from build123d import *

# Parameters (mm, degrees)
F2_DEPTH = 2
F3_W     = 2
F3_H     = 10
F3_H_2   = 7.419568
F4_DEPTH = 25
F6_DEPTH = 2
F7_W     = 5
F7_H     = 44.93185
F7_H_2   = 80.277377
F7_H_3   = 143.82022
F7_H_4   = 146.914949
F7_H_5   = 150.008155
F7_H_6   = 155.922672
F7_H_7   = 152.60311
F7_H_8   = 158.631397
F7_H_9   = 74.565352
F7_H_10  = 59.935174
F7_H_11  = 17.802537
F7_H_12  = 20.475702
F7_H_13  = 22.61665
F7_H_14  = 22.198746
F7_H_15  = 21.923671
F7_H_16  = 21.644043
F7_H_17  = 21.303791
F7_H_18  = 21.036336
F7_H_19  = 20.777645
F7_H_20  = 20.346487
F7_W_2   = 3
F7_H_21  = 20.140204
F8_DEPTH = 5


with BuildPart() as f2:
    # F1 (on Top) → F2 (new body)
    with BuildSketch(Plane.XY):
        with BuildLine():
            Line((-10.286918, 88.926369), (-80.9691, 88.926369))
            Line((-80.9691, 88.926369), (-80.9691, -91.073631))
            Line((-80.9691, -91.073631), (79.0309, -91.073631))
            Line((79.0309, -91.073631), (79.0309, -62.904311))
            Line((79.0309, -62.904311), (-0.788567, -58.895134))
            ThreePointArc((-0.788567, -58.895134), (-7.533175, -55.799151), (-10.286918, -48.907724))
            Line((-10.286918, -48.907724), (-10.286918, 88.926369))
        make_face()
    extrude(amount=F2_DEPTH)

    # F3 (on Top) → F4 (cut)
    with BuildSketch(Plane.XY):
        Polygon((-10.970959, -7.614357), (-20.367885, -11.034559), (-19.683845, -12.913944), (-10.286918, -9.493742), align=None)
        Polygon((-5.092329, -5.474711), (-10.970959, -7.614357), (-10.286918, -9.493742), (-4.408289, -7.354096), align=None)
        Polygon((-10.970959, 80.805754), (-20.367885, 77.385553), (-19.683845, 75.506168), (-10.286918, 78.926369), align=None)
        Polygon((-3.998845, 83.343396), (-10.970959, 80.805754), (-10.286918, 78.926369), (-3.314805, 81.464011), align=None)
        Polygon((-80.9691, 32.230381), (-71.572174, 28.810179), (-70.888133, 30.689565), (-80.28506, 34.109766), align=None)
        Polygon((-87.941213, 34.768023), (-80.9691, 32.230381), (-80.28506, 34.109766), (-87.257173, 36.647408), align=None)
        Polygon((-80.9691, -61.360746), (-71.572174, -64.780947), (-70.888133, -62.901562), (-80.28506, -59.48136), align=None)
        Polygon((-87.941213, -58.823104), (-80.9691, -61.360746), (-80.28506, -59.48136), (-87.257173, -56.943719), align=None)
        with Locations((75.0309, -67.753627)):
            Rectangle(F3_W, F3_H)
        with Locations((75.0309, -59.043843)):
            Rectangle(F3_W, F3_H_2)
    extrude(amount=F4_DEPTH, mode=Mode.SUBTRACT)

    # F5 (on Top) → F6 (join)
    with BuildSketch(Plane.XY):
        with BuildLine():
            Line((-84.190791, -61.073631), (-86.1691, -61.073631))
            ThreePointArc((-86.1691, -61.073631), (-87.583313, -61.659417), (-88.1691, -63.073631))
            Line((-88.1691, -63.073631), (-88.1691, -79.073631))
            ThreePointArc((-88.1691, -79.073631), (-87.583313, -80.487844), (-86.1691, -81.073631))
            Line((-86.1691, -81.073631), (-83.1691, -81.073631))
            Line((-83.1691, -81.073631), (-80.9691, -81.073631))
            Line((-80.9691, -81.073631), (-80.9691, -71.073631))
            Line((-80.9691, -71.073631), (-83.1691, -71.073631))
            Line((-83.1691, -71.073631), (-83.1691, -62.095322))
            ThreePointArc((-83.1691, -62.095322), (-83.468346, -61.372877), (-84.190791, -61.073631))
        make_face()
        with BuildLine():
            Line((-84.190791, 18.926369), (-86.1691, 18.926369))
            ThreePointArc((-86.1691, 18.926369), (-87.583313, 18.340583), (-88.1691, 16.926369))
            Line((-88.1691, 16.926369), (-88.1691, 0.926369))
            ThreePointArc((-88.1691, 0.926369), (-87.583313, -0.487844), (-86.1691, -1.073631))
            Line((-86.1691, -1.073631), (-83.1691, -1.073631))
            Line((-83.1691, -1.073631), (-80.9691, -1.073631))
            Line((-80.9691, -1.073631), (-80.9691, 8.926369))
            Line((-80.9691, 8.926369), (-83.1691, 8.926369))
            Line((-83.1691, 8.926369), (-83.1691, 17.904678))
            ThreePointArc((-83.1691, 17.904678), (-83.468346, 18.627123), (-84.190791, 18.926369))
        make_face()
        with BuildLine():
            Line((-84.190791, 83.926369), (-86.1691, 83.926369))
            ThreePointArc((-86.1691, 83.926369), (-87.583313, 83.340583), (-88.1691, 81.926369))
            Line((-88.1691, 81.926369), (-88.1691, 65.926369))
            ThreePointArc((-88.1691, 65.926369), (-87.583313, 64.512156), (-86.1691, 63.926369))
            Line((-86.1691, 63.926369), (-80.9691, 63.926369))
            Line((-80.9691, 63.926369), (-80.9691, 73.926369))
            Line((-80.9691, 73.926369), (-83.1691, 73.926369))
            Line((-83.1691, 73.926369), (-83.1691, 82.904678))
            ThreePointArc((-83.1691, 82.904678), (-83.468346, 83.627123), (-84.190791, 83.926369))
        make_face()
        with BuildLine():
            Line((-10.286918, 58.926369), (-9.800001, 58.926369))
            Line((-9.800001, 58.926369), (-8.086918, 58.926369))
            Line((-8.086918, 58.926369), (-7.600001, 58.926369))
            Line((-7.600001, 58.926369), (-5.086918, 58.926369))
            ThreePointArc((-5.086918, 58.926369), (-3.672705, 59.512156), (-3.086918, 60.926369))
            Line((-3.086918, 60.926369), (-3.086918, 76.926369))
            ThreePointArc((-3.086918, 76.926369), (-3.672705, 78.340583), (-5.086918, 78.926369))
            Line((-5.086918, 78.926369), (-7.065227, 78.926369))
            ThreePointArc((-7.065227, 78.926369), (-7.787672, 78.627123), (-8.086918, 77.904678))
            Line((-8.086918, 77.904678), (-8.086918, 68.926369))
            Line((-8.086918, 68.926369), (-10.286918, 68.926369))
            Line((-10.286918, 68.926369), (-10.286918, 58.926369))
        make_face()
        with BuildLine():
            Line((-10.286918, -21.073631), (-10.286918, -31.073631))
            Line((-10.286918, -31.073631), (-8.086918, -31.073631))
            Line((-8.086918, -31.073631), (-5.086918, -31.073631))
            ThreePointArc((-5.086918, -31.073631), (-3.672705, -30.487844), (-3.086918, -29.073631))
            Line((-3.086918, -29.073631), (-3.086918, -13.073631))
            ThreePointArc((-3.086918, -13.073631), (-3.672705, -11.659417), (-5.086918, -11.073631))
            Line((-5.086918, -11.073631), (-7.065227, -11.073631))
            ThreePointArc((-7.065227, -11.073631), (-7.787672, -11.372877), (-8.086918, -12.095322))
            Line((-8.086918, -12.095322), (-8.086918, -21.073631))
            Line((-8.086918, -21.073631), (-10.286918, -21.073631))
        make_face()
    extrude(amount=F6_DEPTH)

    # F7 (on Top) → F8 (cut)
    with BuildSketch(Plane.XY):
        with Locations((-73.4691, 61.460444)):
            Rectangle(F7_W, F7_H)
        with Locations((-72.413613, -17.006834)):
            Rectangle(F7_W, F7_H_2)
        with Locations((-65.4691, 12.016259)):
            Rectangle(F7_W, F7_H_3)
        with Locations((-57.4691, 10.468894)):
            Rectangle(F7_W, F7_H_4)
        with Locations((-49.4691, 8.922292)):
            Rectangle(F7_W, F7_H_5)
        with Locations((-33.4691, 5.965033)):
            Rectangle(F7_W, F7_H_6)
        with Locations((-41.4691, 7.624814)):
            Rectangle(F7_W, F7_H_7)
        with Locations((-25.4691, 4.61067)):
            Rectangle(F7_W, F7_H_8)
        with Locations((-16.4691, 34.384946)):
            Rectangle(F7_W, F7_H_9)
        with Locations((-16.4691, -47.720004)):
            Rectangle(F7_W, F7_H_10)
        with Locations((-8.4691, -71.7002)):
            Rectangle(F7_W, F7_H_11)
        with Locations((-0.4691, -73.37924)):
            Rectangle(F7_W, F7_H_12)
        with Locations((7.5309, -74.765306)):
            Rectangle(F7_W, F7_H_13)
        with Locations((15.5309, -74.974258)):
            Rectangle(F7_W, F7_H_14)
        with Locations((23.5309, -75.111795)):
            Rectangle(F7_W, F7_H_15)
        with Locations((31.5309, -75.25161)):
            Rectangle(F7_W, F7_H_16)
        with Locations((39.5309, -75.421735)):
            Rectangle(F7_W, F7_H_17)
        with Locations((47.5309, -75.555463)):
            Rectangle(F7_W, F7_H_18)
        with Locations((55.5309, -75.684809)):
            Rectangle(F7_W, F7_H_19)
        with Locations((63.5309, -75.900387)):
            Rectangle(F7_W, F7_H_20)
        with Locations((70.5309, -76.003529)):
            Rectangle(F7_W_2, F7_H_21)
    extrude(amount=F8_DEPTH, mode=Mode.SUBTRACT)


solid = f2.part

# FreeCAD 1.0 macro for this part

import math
import FreeCAD as App
import Part
import Sketcher

V = App.Vector
Q = App.Units.Quantity


def add_polygon(sketch, points):
    """Adds a closed chain of lines whose ends are joined by coincident constraints."""
    first, n = sketch.GeometryCount, len(points)
    for a, b in zip(points, points[1:] + points[:1]):
        sketch.addGeometry(Part.LineSegment(App.Vector(*a, 0), App.Vector(*b, 0)), False)
    for i in range(n):
        sketch.addConstraint(Sketcher.Constraint("Coincident", first + i, 2, first + (i + 1) % n, 1))

doc = App.newDocument("Part")
params = doc.addObject("Spreadsheet::Sheet", "Params")
for row, (alias, value) in enumerate([
    ("sketch1_radius", "10 mm"),
    ("sketch1_width", "160 mm"),
    ("sketch1_height", "180 mm"),
    ("pad1_length", "2 mm"),
    ("sketch2_width", "2 mm"),
    ("sketch2_length", "10 mm"),
    ("sketch2_length2", "2 mm"),
    ("pocket1_length", "25 mm"),
    ("sketch3_radius", "2 mm"),
    ("sketch3_height", "16 mm"),
    ("sketch3_height2", "10 mm"),
    ("sketch3_width", "5.2 mm"),
    ("sketch3_width2", "2.2 mm"),
    ("pad2_length", "2 mm"),
    ("sketch4_width", "5 mm"),
    ("sketch4_width2", "3 mm"),
    ("pocket2_length", "5 mm"),
], start=1):
    params.set(f"A{row}", alias)
    params.set(f"B{row}", "=" + value)
    params.setAlias(f"B{row}", alias)

body = doc.addObject("PartDesign::Body", "Body")

# Sketch on XY plane
sketch1 = body.newObject("Sketcher::SketchObject", "Sketch")
sketch1.AttachmentSupport = (doc.getObject("XY_Plane"), [""])
sketch1.MapMode = "FlatFace"
sketch1.addGeometry(Part.LineSegment(V(-10, 89, 0), V(-81, 89, 0)), False)
sketch1.addGeometry(Part.LineSegment(V(-81, 89, 0), V(-81, -91, 0)), False)
sketch1.addGeometry(Part.LineSegment(V(-81, -91, 0), V(79, -91, 0)), False)
sketch1.addGeometry(Part.LineSegment(V(79, -91, 0), V(79, -63, 0)), False)
sketch1.addGeometry(Part.LineSegment(V(79, -63, 0), V(-1, -59, 0)), False)
sketch1.addGeometry(Part.ArcOfCircle(Part.Circle(V(0, -49, 0), V(0, 0, 1), 10), math.radians(180), math.radians(267)), False)
sketch1.addGeometry(Part.LineSegment(V(-10, -49, 0), V(-10, 89, 0)), False)
sketch1.addConstraint(Sketcher.Constraint("Coincident", 0, 2, 1, 1))
sketch1.addConstraint(Sketcher.Constraint("Coincident", 1, 2, 2, 1))
sketch1.addConstraint(Sketcher.Constraint("Coincident", 2, 2, 3, 1))
sketch1.addConstraint(Sketcher.Constraint("Coincident", 3, 2, 4, 1))
sketch1.addConstraint(Sketcher.Constraint("Tangent", 4, 2, 5, 2))
sketch1.addConstraint(Sketcher.Constraint("Tangent", 5, 1, 6, 1))
sketch1.addConstraint(Sketcher.Constraint("Coincident", 6, 2, 0, 1))
sketch1.addConstraint(Sketcher.Constraint("Horizontal", 0))
sketch1.addConstraint(Sketcher.Constraint("Vertical", 1))
sketch1.addConstraint(Sketcher.Constraint("Horizontal", 2))
sketch1.addConstraint(Sketcher.Constraint("Vertical", 3))
sketch1.addConstraint(Sketcher.Constraint("Vertical", 6))
sketch1.addConstraint(Sketcher.Constraint("Radius", 5, 10.0))
sketch1.addConstraint(Sketcher.Constraint("DistanceX", 2, 1, 2, 2, 160.0))
sketch1.addConstraint(Sketcher.Constraint("DistanceY", 1, 2, 1, 1, 180.0))
sketch1.addConstraint(Sketcher.Constraint("DistanceX", 0, 2, 0, 1, 70.682182))
sketch1.addConstraint(Sketcher.Constraint("DistanceY", 3, 1, 3, 2, 28.16932))
sketch1.addConstraint(Sketcher.Constraint("DistanceX", 0, 2, -1, 1, 80.9691))
sketch1.addConstraint(Sketcher.Constraint("Distance", 4, 79.92009))
sketch1.addConstraint(Sketcher.Constraint("DistanceY", -1, 1, 0, 2, 88.926369))
sketch1.setExpression("Constraints[12]", "Params.sketch1_radius")
sketch1.setExpression("Constraints[13]", "Params.sketch1_width")
sketch1.setExpression("Constraints[14]", "Params.sketch1_height")
pad1 = body.newObject("PartDesign::Pad", "Pad")
pad1.Profile = sketch1
pad1.setExpression("Length", "Params.pad1_length")

# Sketch on XY plane
sketch2 = body.newObject("Sketcher::SketchObject", "Sketch001")
sketch2.AttachmentSupport = (doc.getObject("XY_Plane"), [""])
sketch2.MapMode = "FlatFace"
add_polygon(sketch2, [(-11, -7.6), (-20.4, -11), (-19.7, -12.9), (-10.3, -9.5), (-4.4, -7.4), (-5.1, -5.5)])  # lines 0-5
add_polygon(sketch2, [(-11, 80.8), (-20.4, 77.4), (-19.7, 75.5), (-10.3, 78.9), (-3.3, 81.5), (-4, 83.3)])  # lines 6-11
add_polygon(sketch2, [(-81, 32.2), (-71.6, 28.8), (-70.9, 30.7), (-80.3, 34.1), (-87.3, 36.6), (-87.9, 34.8)])  # lines 12-17
add_polygon(sketch2, [(-81, -61.4), (-71.6, -64.8), (-70.9, -62.9), (-80.3, -59.5), (-87.3, -56.9), (-87.9, -58.8)])  # lines 18-23
add_polygon(sketch2, [(74, -72.8), (76, -72.8), (76, -55.3), (74, -55.3)])  # lines 24-27
sketch2.addConstraint(Sketcher.Constraint("Horizontal", 24))
sketch2.addConstraint(Sketcher.Constraint("Vertical", 25))
sketch2.addConstraint(Sketcher.Constraint("Horizontal", 26))
sketch2.addConstraint(Sketcher.Constraint("Vertical", 27))
sketch2.addConstraint(Sketcher.Constraint("Perpendicular", 0, 1))
sketch2.addConstraint(Sketcher.Constraint("Perpendicular", 1, 2))
sketch2.addConstraint(Sketcher.Constraint("Parallel", 2, 3))
sketch2.addConstraint(Sketcher.Constraint("Perpendicular", 3, 4))
sketch2.addConstraint(Sketcher.Constraint("Perpendicular", 4, 5))
sketch2.addConstraint(Sketcher.Constraint("Parallel", 5, 6))
sketch2.addConstraint(Sketcher.Constraint("Perpendicular", 6, 7))
sketch2.addConstraint(Sketcher.Constraint("Perpendicular", 7, 8))
sketch2.addConstraint(Sketcher.Constraint("Parallel", 8, 9))
sketch2.addConstraint(Sketcher.Constraint("Perpendicular", 9, 10))
sketch2.addConstraint(Sketcher.Constraint("Perpendicular", 10, 11))
sketch2.addConstraint(Sketcher.Constraint("Perpendicular", 12, 13))
sketch2.addConstraint(Sketcher.Constraint("Perpendicular", 13, 14))
sketch2.addConstraint(Sketcher.Constraint("Parallel", 14, 15))
sketch2.addConstraint(Sketcher.Constraint("Perpendicular", 15, 16))
sketch2.addConstraint(Sketcher.Constraint("Perpendicular", 16, 17))
sketch2.addConstraint(Sketcher.Constraint("Parallel", 17, 18))
sketch2.addConstraint(Sketcher.Constraint("Perpendicular", 18, 19))
sketch2.addConstraint(Sketcher.Constraint("Perpendicular", 19, 20))
sketch2.addConstraint(Sketcher.Constraint("Parallel", 20, 21))
sketch2.addConstraint(Sketcher.Constraint("Perpendicular", 21, 22))
sketch2.addConstraint(Sketcher.Constraint("Perpendicular", 22, 23))
sketch2.addConstraint(Sketcher.Constraint("Vertical", 0, 2, 6, 2))
sketch2.addConstraint(Sketcher.Constraint("Vertical", 1, 2, 7, 2))
sketch2.addConstraint(Sketcher.Constraint("Vertical", 2, 2, 8, 2))
sketch2.addConstraint(Sketcher.Constraint("Vertical", 5, 2, 11, 2))
sketch2.addConstraint(Sketcher.Constraint("Vertical", 12, 2, 18, 2))
sketch2.addConstraint(Sketcher.Constraint("Vertical", 13, 2, 19, 2))
sketch2.addConstraint(Sketcher.Constraint("Vertical", 14, 2, 20, 2))
sketch2.addConstraint(Sketcher.Constraint("Vertical", 15, 2, 21, 2))
sketch2.addConstraint(Sketcher.Constraint("Vertical", 17, 2, 23, 2))
sketch2.addConstraint(Sketcher.Constraint("Equal", 0, 2))
sketch2.addConstraint(Sketcher.Constraint("Equal", 8, 12))
sketch2.addConstraint(Sketcher.Constraint("Equal", 10, 13))
sketch2.addConstraint(Sketcher.Constraint("Equal", 12, 14))
sketch2.addConstraint(Sketcher.Constraint("Equal", 11, 15))
sketch2.addConstraint(Sketcher.Constraint("DistanceX", 24, 1, 24, 2, 2.0))
sketch2.addConstraint(Sketcher.Constraint("Angle", 0, Q("-159.999997 deg")))
sketch2.addConstraint(Sketcher.Constraint("Angle", 12, Q("-20.000003 deg")))
sketch2.addConstraint(Sketcher.Constraint("Distance", 0, 10.0))
sketch2.addConstraint(Sketcher.Constraint("Distance", 1, 2.0))
sketch2.addConstraint(Sketcher.Constraint("DistanceX", 7, 2, 10, 2, 15.685))
sketch2.addConstraint(Sketcher.Constraint("DistanceX", 17, 2, -1, 1, 80.9691))
sketch2.addConstraint(Sketcher.Constraint("DistanceX", -1, 1, 24, 2, 76.0309))
sketch2.addConstraint(Sketcher.Constraint("DistanceY", 20, 2, 0, 2, 48.446801))
sketch2.addConstraint(Sketcher.Constraint("DistanceY", 25, 1, 25, 2, 17.419568))
sketch2.addConstraint(Sketcher.Constraint("DistanceY", 0, 2, -1, 1, 11.034559))
sketch2.addConstraint(Sketcher.Constraint("DistanceX", 3, 2, -1, 1, 4.408289))
sketch2.addConstraint(Sketcher.Constraint("DistanceY", 4, 2, -1, 1, 5.474711))
sketch2.addConstraint(Sketcher.Constraint("DistanceY", -1, 1, 7, 2, 75.506168))
sketch2.addConstraint(Sketcher.Constraint("DistanceY", -1, 1, 12, 2, 28.810179))
sketch2.addConstraint(Sketcher.Constraint("DistanceY", 25, 2, -1, 1, 55.334059))
sketch2.setExpression("Constraints[68]", "Params.sketch2_width")
sketch2.setExpression("Constraints[71]", "Params.sketch2_length")
sketch2.setExpression("Constraints[72]", "Params.sketch2_length2")
pocket1 = body.newObject("PartDesign::Pocket", "Pocket")
pocket1.Profile = sketch2
pocket1.setExpression("Length", "Params.pocket1_length")
pocket1.Reversed = True

# Sketch on XY plane
sketch3 = body.newObject("Sketcher::SketchObject", "Sketch002")
sketch3.AttachmentSupport = (doc.getObject("XY_Plane"), [""])
sketch3.MapMode = "FlatFace"
sketch3.addGeometry(Part.LineSegment(V(-84.2, -61.1, 0), V(-86.2, -61.1, 0)), False)
sketch3.addGeometry(Part.ArcOfCircle(Part.Circle(V(-86.2, -63.1, 0), V(0, 0, 1), 2), math.radians(90), math.radians(180)), False)
sketch3.addGeometry(Part.LineSegment(V(-88.2, -63.1, 0), V(-88.2, -79.1, 0)), False)
sketch3.addGeometry(Part.ArcOfCircle(Part.Circle(V(-86.2, -79.1, 0), V(0, 0, 1), 2), math.radians(-180), math.radians(-90)), False)
sketch3.addGeometry(Part.LineSegment(V(-86.2, -81.1, 0), V(-81, -81.1, 0)), False)
sketch3.addGeometry(Part.LineSegment(V(-81, -81.1, 0), V(-81, -71.1, 0)), False)
sketch3.addGeometry(Part.LineSegment(V(-81, -71.1, 0), V(-83.2, -71.1, 0)), False)
sketch3.addGeometry(Part.LineSegment(V(-83.2, -71.1, 0), V(-83.2, -62.1, 0)), False)
sketch3.addGeometry(Part.ArcOfCircle(Part.Circle(V(-84.2, -62.1, 0), V(0, 0, 1), 1), math.radians(0), math.radians(90)), False)
sketch3.addGeometry(Part.LineSegment(V(-84.2, 18.9, 0), V(-86.2, 18.9, 0)), False)
sketch3.addGeometry(Part.ArcOfCircle(Part.Circle(V(-86.2, 16.9, 0), V(0, 0, 1), 2), math.radians(90), math.radians(180)), False)
sketch3.addGeometry(Part.LineSegment(V(-88.2, 16.9, 0), V(-88.2, 0.9, 0)), False)
sketch3.addGeometry(Part.ArcOfCircle(Part.Circle(V(-86.2, 0.9, 0), V(0, 0, 1), 2), math.radians(-180), math.radians(-90)), False)
sketch3.addGeometry(Part.LineSegment(V(-86.2, -1.1, 0), V(-81, -1.1, 0)), False)
sketch3.addGeometry(Part.LineSegment(V(-81, -1.1, 0), V(-81, 8.9, 0)), False)
sketch3.addGeometry(Part.LineSegment(V(-81, 8.9, 0), V(-83.2, 8.9, 0)), False)
sketch3.addGeometry(Part.LineSegment(V(-83.2, 8.9, 0), V(-83.2, 17.9, 0)), False)
sketch3.addGeometry(Part.ArcOfCircle(Part.Circle(V(-84.2, 17.9, 0), V(0, 0, 1), 1), math.radians(0), math.radians(90)), False)
sketch3.addGeometry(Part.LineSegment(V(-84.2, 83.9, 0), V(-86.2, 83.9, 0)), False)
sketch3.addGeometry(Part.ArcOfCircle(Part.Circle(V(-86.2, 81.9, 0), V(0, 0, 1), 2), math.radians(90), math.radians(180)), False)
sketch3.addGeometry(Part.LineSegment(V(-88.2, 81.9, 0), V(-88.2, 65.9, 0)), False)
sketch3.addGeometry(Part.ArcOfCircle(Part.Circle(V(-86.2, 65.9, 0), V(0, 0, 1), 2), math.radians(-180), math.radians(-90)), False)
sketch3.addGeometry(Part.LineSegment(V(-86.2, 63.9, 0), V(-81, 63.9, 0)), False)
sketch3.addGeometry(Part.LineSegment(V(-81, 63.9, 0), V(-81, 73.9, 0)), False)
sketch3.addGeometry(Part.LineSegment(V(-81, 73.9, 0), V(-83.2, 73.9, 0)), False)
sketch3.addGeometry(Part.LineSegment(V(-83.2, 73.9, 0), V(-83.2, 82.9, 0)), False)
sketch3.addGeometry(Part.ArcOfCircle(Part.Circle(V(-84.2, 82.9, 0), V(0, 0, 1), 1), math.radians(0), math.radians(90)), False)
sketch3.addGeometry(Part.LineSegment(V(-10.3, 58.9, 0), V(-5.1, 58.9, 0)), False)
sketch3.addGeometry(Part.ArcOfCircle(Part.Circle(V(-5.1, 60.9, 0), V(0, 0, 1), 2), math.radians(-90), math.radians(0)), False)
sketch3.addGeometry(Part.LineSegment(V(-3.1, 60.9, 0), V(-3.1, 76.9, 0)), False)
sketch3.addGeometry(Part.ArcOfCircle(Part.Circle(V(-5.1, 76.9, 0), V(0, 0, 1), 2), math.radians(0), math.radians(90)), False)
sketch3.addGeometry(Part.LineSegment(V(-5.1, 78.9, 0), V(-7.1, 78.9, 0)), False)
sketch3.addGeometry(Part.ArcOfCircle(Part.Circle(V(-7.1, 77.9, 0), V(0, 0, 1), 1), math.radians(90), math.radians(180)), False)
sketch3.addGeometry(Part.LineSegment(V(-8.1, 77.9, 0), V(-8.1, 68.9, 0)), False)
sketch3.addGeometry(Part.LineSegment(V(-8.1, 68.9, 0), V(-10.3, 68.9, 0)), False)
sketch3.addGeometry(Part.LineSegment(V(-10.3, 68.9, 0), V(-10.3, 58.9, 0)), False)
sketch3.addGeometry(Part.LineSegment(V(-10.3, -21.1, 0), V(-10.3, -31.1, 0)), False)
sketch3.addGeometry(Part.LineSegment(V(-10.3, -31.1, 0), V(-5.1, -31.1, 0)), False)
sketch3.addGeometry(Part.ArcOfCircle(Part.Circle(V(-5.1, -29.1, 0), V(0, 0, 1), 2), math.radians(-90), math.radians(0)), False)
sketch3.addGeometry(Part.LineSegment(V(-3.1, -29.1, 0), V(-3.1, -13.1, 0)), False)
sketch3.addGeometry(Part.ArcOfCircle(Part.Circle(V(-5.1, -13.1, 0), V(0, 0, 1), 2), math.radians(0), math.radians(90)), False)
sketch3.addGeometry(Part.LineSegment(V(-5.1, -11.1, 0), V(-7.1, -11.1, 0)), False)
sketch3.addGeometry(Part.ArcOfCircle(Part.Circle(V(-7.1, -12.1, 0), V(0, 0, 1), 1), math.radians(90), math.radians(180)), False)
sketch3.addGeometry(Part.LineSegment(V(-8.1, -12.1, 0), V(-8.1, -21.1, 0)), False)
sketch3.addGeometry(Part.LineSegment(V(-8.1, -21.1, 0), V(-10.3, -21.1, 0)), False)
sketch3.addConstraint(Sketcher.Constraint("Tangent", 0, 2, 1, 1))
sketch3.addConstraint(Sketcher.Constraint("Tangent", 1, 2, 2, 1))
sketch3.addConstraint(Sketcher.Constraint("Tangent", 2, 2, 3, 1))
sketch3.addConstraint(Sketcher.Constraint("Tangent", 3, 2, 4, 1))
sketch3.addConstraint(Sketcher.Constraint("Coincident", 4, 2, 5, 1))
sketch3.addConstraint(Sketcher.Constraint("Coincident", 5, 2, 6, 1))
sketch3.addConstraint(Sketcher.Constraint("Coincident", 6, 2, 7, 1))
sketch3.addConstraint(Sketcher.Constraint("Tangent", 7, 2, 8, 1))
sketch3.addConstraint(Sketcher.Constraint("Tangent", 8, 2, 0, 1))
sketch3.addConstraint(Sketcher.Constraint("Tangent", 9, 2, 10, 1))
sketch3.addConstraint(Sketcher.Constraint("Tangent", 10, 2, 11, 1))
sketch3.addConstraint(Sketcher.Constraint("Tangent", 11, 2, 12, 1))
sketch3.addConstraint(Sketcher.Constraint("Tangent", 12, 2, 13, 1))
sketch3.addConstraint(Sketcher.Constraint("Coincident", 13, 2, 14, 1))
sketch3.addConstraint(Sketcher.Constraint("Coincident", 14, 2, 15, 1))
sketch3.addConstraint(Sketcher.Constraint("Coincident", 15, 2, 16, 1))
sketch3.addConstraint(Sketcher.Constraint("Tangent", 16, 2, 17, 1))
sketch3.addConstraint(Sketcher.Constraint("Tangent", 17, 2, 9, 1))
sketch3.addConstraint(Sketcher.Constraint("Tangent", 18, 2, 19, 1))
sketch3.addConstraint(Sketcher.Constraint("Tangent", 19, 2, 20, 1))
sketch3.addConstraint(Sketcher.Constraint("Tangent", 20, 2, 21, 1))
sketch3.addConstraint(Sketcher.Constraint("Tangent", 21, 2, 22, 1))
sketch3.addConstraint(Sketcher.Constraint("Coincident", 22, 2, 23, 1))
sketch3.addConstraint(Sketcher.Constraint("Coincident", 23, 2, 24, 1))
sketch3.addConstraint(Sketcher.Constraint("Coincident", 24, 2, 25, 1))
sketch3.addConstraint(Sketcher.Constraint("Tangent", 25, 2, 26, 1))
sketch3.addConstraint(Sketcher.Constraint("Tangent", 26, 2, 18, 1))
sketch3.addConstraint(Sketcher.Constraint("Tangent", 27, 2, 28, 1))
sketch3.addConstraint(Sketcher.Constraint("Tangent", 28, 2, 29, 1))
sketch3.addConstraint(Sketcher.Constraint("Tangent", 29, 2, 30, 1))
sketch3.addConstraint(Sketcher.Constraint("Tangent", 30, 2, 31, 1))
sketch3.addConstraint(Sketcher.Constraint("Tangent", 31, 2, 32, 1))
sketch3.addConstraint(Sketcher.Constraint("Tangent", 32, 2, 33, 1))
sketch3.addConstraint(Sketcher.Constraint("Coincident", 33, 2, 34, 1))
sketch3.addConstraint(Sketcher.Constraint("Coincident", 34, 2, 35, 1))
sketch3.addConstraint(Sketcher.Constraint("Coincident", 35, 2, 27, 1))
sketch3.addConstraint(Sketcher.Constraint("Coincident", 36, 2, 37, 1))
sketch3.addConstraint(Sketcher.Constraint("Tangent", 37, 2, 38, 1))
sketch3.addConstraint(Sketcher.Constraint("Tangent", 38, 2, 39, 1))
sketch3.addConstraint(Sketcher.Constraint("Tangent", 39, 2, 40, 1))
sketch3.addConstraint(Sketcher.Constraint("Tangent", 40, 2, 41, 1))
sketch3.addConstraint(Sketcher.Constraint("Tangent", 41, 2, 42, 1))
sketch3.addConstraint(Sketcher.Constraint("Tangent", 42, 2, 43, 1))
sketch3.addConstraint(Sketcher.Constraint("Coincident", 43, 2, 44, 1))
sketch3.addConstraint(Sketcher.Constraint("Coincident", 44, 2, 36, 1))
sketch3.addConstraint(Sketcher.Constraint("Horizontal", 0))
sketch3.addConstraint(Sketcher.Constraint("Vertical", 2))
sketch3.addConstraint(Sketcher.Constraint("Horizontal", 4))
sketch3.addConstraint(Sketcher.Constraint("Vertical", 5))
sketch3.addConstraint(Sketcher.Constraint("Horizontal", 6))
sketch3.addConstraint(Sketcher.Constraint("Vertical", 7))
sketch3.addConstraint(Sketcher.Constraint("Horizontal", 9))
sketch3.addConstraint(Sketcher.Constraint("Vertical", 11))
sketch3.addConstraint(Sketcher.Constraint("Horizontal", 13))
sketch3.addConstraint(Sketcher.Constraint("Vertical", 14))
sketch3.addConstraint(Sketcher.Constraint("Horizontal", 15))
sketch3.addConstraint(Sketcher.Constraint("Vertical", 16))
sketch3.addConstraint(Sketcher.Constraint("Horizontal", 18))
sketch3.addConstraint(Sketcher.Constraint("Vertical", 20))
sketch3.addConstraint(Sketcher.Constraint("Horizontal", 22))
sketch3.addConstraint(Sketcher.Constraint("Vertical", 23))
sketch3.addConstraint(Sketcher.Constraint("Horizontal", 24))
sketch3.addConstraint(Sketcher.Constraint("Vertical", 25))
sketch3.addConstraint(Sketcher.Constraint("Horizontal", 27))
sketch3.addConstraint(Sketcher.Constraint("Vertical", 29))
sketch3.addConstraint(Sketcher.Constraint("Horizontal", 31))
sketch3.addConstraint(Sketcher.Constraint("Vertical", 33))
sketch3.addConstraint(Sketcher.Constraint("Horizontal", 34))
sketch3.addConstraint(Sketcher.Constraint("Vertical", 35))
sketch3.addConstraint(Sketcher.Constraint("Vertical", 36))
sketch3.addConstraint(Sketcher.Constraint("Horizontal", 37))
sketch3.addConstraint(Sketcher.Constraint("Vertical", 39))
sketch3.addConstraint(Sketcher.Constraint("Horizontal", 41))
sketch3.addConstraint(Sketcher.Constraint("Vertical", 43))
sketch3.addConstraint(Sketcher.Constraint("Horizontal", 44))
sketch3.addConstraint(Sketcher.Constraint("Equal", 1, 3))
sketch3.addConstraint(Sketcher.Constraint("Equal", 3, 10))
sketch3.addConstraint(Sketcher.Constraint("Equal", 10, 12))
sketch3.addConstraint(Sketcher.Constraint("Equal", 8, 17))
sketch3.addConstraint(Sketcher.Constraint("Equal", 12, 19))
sketch3.addConstraint(Sketcher.Constraint("Equal", 19, 21))
sketch3.addConstraint(Sketcher.Constraint("Equal", 17, 26))
sketch3.addConstraint(Sketcher.Constraint("Equal", 21, 28))
sketch3.addConstraint(Sketcher.Constraint("Equal", 28, 30))
sketch3.addConstraint(Sketcher.Constraint("Equal", 26, 32))
sketch3.addConstraint(Sketcher.Constraint("Equal", 30, 38))
sketch3.addConstraint(Sketcher.Constraint("Equal", 38, 40))
sketch3.addConstraint(Sketcher.Constraint("Equal", 32, 42))
sketch3.addConstraint(Sketcher.Constraint("Vertical", 3, 3, 10, 3))
sketch3.addConstraint(Sketcher.Constraint("Vertical", 8, 3, 17, 3))
sketch3.addConstraint(Sketcher.Constraint("Vertical", 12, 3, 19, 3))
sketch3.addConstraint(Sketcher.Constraint("Vertical", 17, 3, 26, 3))
sketch3.addConstraint(Sketcher.Constraint("Vertical", 30, 3, 38, 3))
sketch3.addConstraint(Sketcher.Constraint("Vertical", 32, 3, 42, 3))
sketch3.addConstraint(Sketcher.Constraint("Vertical", 5, 2, 13, 2))
sketch3.addConstraint(Sketcher.Constraint("Vertical", 14, 2, 22, 2))
sketch3.addConstraint(Sketcher.Constraint("Vertical", 35, 2, 36, 2))
sketch3.addConstraint(Sketcher.Constraint("Equal", 22, 27))
sketch3.addConstraint(Sketcher.Constraint("Equal", 18, 31))
sketch3.addConstraint(Sketcher.Constraint("Equal", 2, 11))
sketch3.addConstraint(Sketcher.Constraint("Equal", 5, 14))
sketch3.addConstraint(Sketcher.Constraint("Equal", 11, 20))
sketch3.addConstraint(Sketcher.Constraint("Equal", 14, 23))
sketch3.addConstraint(Sketcher.Constraint("Equal", 20, 29))
sketch3.addConstraint(Sketcher.Constraint("Equal", 25, 33))
sketch3.addConstraint(Sketcher.Constraint("Equal", 35, 36))
sketch3.addConstraint(Sketcher.Constraint("Equal", 29, 39))
sketch3.addConstraint(Sketcher.Constraint("Radius", 1, 2.0))
sketch3.addConstraint(Sketcher.Constraint("DistanceY", 2, 2, 2, 1, 16.0))
sketch3.addConstraint(Sketcher.Constraint("DistanceY", 5, 1, 5, 2, 10.0))
sketch3.addConstraint(Sketcher.Constraint("DistanceX", 4, 1, 4, 2, 5.2))
sketch3.addConstraint(Sketcher.Constraint("DistanceX", 6, 2, 6, 1, 2.2))
sketch3.addConstraint(Sketcher.Constraint("DistanceY", 1, 3, 10, 3, 80.0))
sketch3.addConstraint(Sketcher.Constraint("DistanceY", 10, 3, 19, 3, 65.0))
sketch3.addConstraint(Sketcher.Constraint("DistanceY", 28, 3, 21, 3, 5.0))
sketch3.addConstraint(Sketcher.Constraint("DistanceY", 38, 3, 12, 3, 30.0))
sketch3.addConstraint(Sketcher.Constraint("Radius", 8, 1.02169))
sketch3.addConstraint(Sketcher.Constraint("DistanceX", 1, 3, -1, 1, 86.1691))
sketch3.addConstraint(Sketcher.Constraint("DistanceY", 1, 3, -1, 1, 63.073631))
sketch3.addConstraint(Sketcher.Constraint("DistanceX", 28, 3, -1, 1, 5.08692))
sketch3.setExpression("Constraints[107]", "Params.sketch3_radius")
sketch3.setExpression("Constraints[108]", "Params.sketch3_height")
sketch3.setExpression("Constraints[109]", "Params.sketch3_height2")
sketch3.setExpression("Constraints[110]", "Params.sketch3_width")
sketch3.setExpression("Constraints[111]", "Params.sketch3_width2")
pad2 = body.newObject("PartDesign::Pad", "Pad001")
pad2.Profile = sketch3
pad2.setExpression("Length", "Params.pad2_length")

# Sketch on XY plane
sketch4 = body.newObject("Sketcher::SketchObject", "Sketch003")
sketch4.AttachmentSupport = (doc.getObject("XY_Plane"), [""])
sketch4.MapMode = "FlatFace"
add_polygon(sketch4, [(-76, 83.9), (-76, 39), (-71, 39), (-71, 83.9)])  # lines 0-3
add_polygon(sketch4, [(-74.9, 23.1), (-74.9, -57.1), (-69.9, -57.1), (-69.9, 23.1)])  # lines 4-7
add_polygon(sketch4, [(-68, 83.9), (-68, -59.9), (-63, -59.9), (-63, 83.9)])  # lines 8-11
add_polygon(sketch4, [(-60, 83.9), (-60, -63), (-55, -63), (-55, 83.9)])  # lines 12-15
add_polygon(sketch4, [(-52, 83.9), (-52, -66.1), (-47, -66.1), (-47, 83.9)])  # lines 16-19
add_polygon(sketch4, [(-36, 83.9), (-36, -72), (-31, -72), (-31, 83.9)])  # lines 20-23
add_polygon(sketch4, [(-44, 83.9), (-44, -68.7), (-39, -68.7), (-39, 83.9)])  # lines 24-27
add_polygon(sketch4, [(-28, 83.9), (-28, -74.7), (-23, -74.7), (-23, 83.9)])  # lines 28-31
add_polygon(sketch4, [(-19, 71.7), (-19, -2.9), (-14, -2.9), (-14, 71.7)])  # lines 32-35
add_polygon(sketch4, [(-19, -17.8), (-19, -77.7), (-14, -77.7), (-14, -17.8)])  # lines 36-39
add_polygon(sketch4, [(-11, -62.8), (-11, -80.6), (-6, -80.6), (-6, -62.8)])  # lines 40-43
add_polygon(sketch4, [(-3, -63.1), (-3, -83.6), (2, -83.6), (2, -63.1)])  # lines 44-47
add_polygon(sketch4, [(5, -63.5), (5, -86.1), (10, -86.1), (10, -63.5)])  # lines 48-51
add_polygon(sketch4, [(13, -63.9), (13, -86.1), (18, -86.1), (18, -63.9)])  # lines 52-55
add_polygon(sketch4, [(21, -64.1), (21, -86.1), (26, -86.1), (26, -64.1)])  # lines 56-59
add_polygon(sketch4, [(29, -64.4), (29, -86.1), (34, -86.1), (34, -64.4)])  # lines 60-63
add_polygon(sketch4, [(37, -64.8), (37, -86.1), (42, -86.1), (42, -64.8)])  # lines 64-67
add_polygon(sketch4, [(45, -65), (45, -86.1), (50, -86.1), (50, -65)])  # lines 68-71
add_polygon(sketch4, [(53, -65.3), (53, -86.1), (58, -86.1), (58, -65.3)])  # lines 72-75
add_polygon(sketch4, [(61, -65.7), (61, -86.1), (66, -86.1), (66, -65.7)])  # lines 76-79
add_polygon(sketch4, [(69, -65.9), (69, -86.1), (72, -86.1), (72, -65.9)])  # lines 80-83
sketch4.addConstraint(Sketcher.Constraint("Vertical", 0))
sketch4.addConstraint(Sketcher.Constraint("Horizontal", 1))
sketch4.addConstraint(Sketcher.Constraint("Vertical", 2))
sketch4.addConstraint(Sketcher.Constraint("Horizontal", 3))
sketch4.addConstraint(Sketcher.Constraint("Vertical", 4))
sketch4.addConstraint(Sketcher.Constraint("Horizontal", 5))
sketch4.addConstraint(Sketcher.Constraint("Vertical", 6))
sketch4.addConstraint(Sketcher.Constraint("Horizontal", 7))
sketch4.addConstraint(Sketcher.Constraint("Vertical", 8))
sketch4.addConstraint(Sketcher.Constraint("Horizontal", 9))
sketch4.addConstraint(Sketcher.Constraint("Vertical", 10))
sketch4.addConstraint(Sketcher.Constraint("Horizontal", 11))
sketch4.addConstraint(Sketcher.Constraint("Vertical", 12))
sketch4.addConstraint(Sketcher.Constraint("Horizontal", 13))
sketch4.addConstraint(Sketcher.Constraint("Vertical", 14))
sketch4.addConstraint(Sketcher.Constraint("Horizontal", 15))
sketch4.addConstraint(Sketcher.Constraint("Vertical", 16))
sketch4.addConstraint(Sketcher.Constraint("Horizontal", 17))
sketch4.addConstraint(Sketcher.Constraint("Vertical", 18))
sketch4.addConstraint(Sketcher.Constraint("Horizontal", 19))
sketch4.addConstraint(Sketcher.Constraint("Vertical", 20))
sketch4.addConstraint(Sketcher.Constraint("Horizontal", 21))
sketch4.addConstraint(Sketcher.Constraint("Vertical", 22))
sketch4.addConstraint(Sketcher.Constraint("Horizontal", 23))
sketch4.addConstraint(Sketcher.Constraint("Vertical", 24))
sketch4.addConstraint(Sketcher.Constraint("Horizontal", 25))
sketch4.addConstraint(Sketcher.Constraint("Vertical", 26))
sketch4.addConstraint(Sketcher.Constraint("Horizontal", 27))
sketch4.addConstraint(Sketcher.Constraint("Vertical", 28))
sketch4.addConstraint(Sketcher.Constraint("Horizontal", 29))
sketch4.addConstraint(Sketcher.Constraint("Vertical", 30))
sketch4.addConstraint(Sketcher.Constraint("Horizontal", 31))
sketch4.addConstraint(Sketcher.Constraint("Vertical", 32))
sketch4.addConstraint(Sketcher.Constraint("Horizontal", 33))
sketch4.addConstraint(Sketcher.Constraint("Vertical", 34))
sketch4.addConstraint(Sketcher.Constraint("Horizontal", 35))
sketch4.addConstraint(Sketcher.Constraint("Vertical", 36))
sketch4.addConstraint(Sketcher.Constraint("Horizontal", 37))
sketch4.addConstraint(Sketcher.Constraint("Vertical", 38))
sketch4.addConstraint(Sketcher.Constraint("Horizontal", 39))
sketch4.addConstraint(Sketcher.Constraint("Vertical", 40))
sketch4.addConstraint(Sketcher.Constraint("Horizontal", 41))
sketch4.addConstraint(Sketcher.Constraint("Vertical", 42))
sketch4.addConstraint(Sketcher.Constraint("Horizontal", 43))
sketch4.addConstraint(Sketcher.Constraint("Vertical", 44))
sketch4.addConstraint(Sketcher.Constraint("Horizontal", 45))
sketch4.addConstraint(Sketcher.Constraint("Vertical", 46))
sketch4.addConstraint(Sketcher.Constraint("Horizontal", 47))
sketch4.addConstraint(Sketcher.Constraint("Vertical", 48))
sketch4.addConstraint(Sketcher.Constraint("Horizontal", 49))
sketch4.addConstraint(Sketcher.Constraint("Vertical", 50))
sketch4.addConstraint(Sketcher.Constraint("Horizontal", 51))
sketch4.addConstraint(Sketcher.Constraint("Vertical", 52))
sketch4.addConstraint(Sketcher.Constraint("Horizontal", 53))
sketch4.addConstraint(Sketcher.Constraint("Vertical", 54))
sketch4.addConstraint(Sketcher.Constraint("Horizontal", 55))
sketch4.addConstraint(Sketcher.Constraint("Vertical", 56))
sketch4.addConstraint(Sketcher.Constraint("Horizontal", 57))
sketch4.addConstraint(Sketcher.Constraint("Vertical", 58))
sketch4.addConstraint(Sketcher.Constraint("Horizontal", 59))
sketch4.addConstraint(Sketcher.Constraint("Vertical", 60))
sketch4.addConstraint(Sketcher.Constraint("Horizontal", 61))
sketch4.addConstraint(Sketcher.Constraint("Vertical", 62))
sketch4.addConstraint(Sketcher.Constraint("Horizontal", 63))
sketch4.addConstraint(Sketcher.Constraint("Vertical", 64))
sketch4.addConstraint(Sketcher.Constraint("Horizontal", 65))
sketch4.addConstraint(Sketcher.Constraint("Vertical", 66))
sketch4.addConstraint(Sketcher.Constraint("Horizontal", 67))
sketch4.addConstraint(Sketcher.Constraint("Vertical", 68))
sketch4.addConstraint(Sketcher.Constraint("Horizontal", 69))
sketch4.addConstraint(Sketcher.Constraint("Vertical", 70))
sketch4.addConstraint(Sketcher.Constraint("Horizontal", 71))
sketch4.addConstraint(Sketcher.Constraint("Vertical", 72))
sketch4.addConstraint(Sketcher.Constraint("Horizontal", 73))
sketch4.addConstraint(Sketcher.Constraint("Vertical", 74))
sketch4.addConstraint(Sketcher.Constraint("Horizontal", 75))
sketch4.addConstraint(Sketcher.Constraint("Vertical", 76))
sketch4.addConstraint(Sketcher.Constraint("Horizontal", 77))
sketch4.addConstraint(Sketcher.Constraint("Vertical", 78))
sketch4.addConstraint(Sketcher.Constraint("Horizontal", 79))
sketch4.addConstraint(Sketcher.Constraint("Vertical", 80))
sketch4.addConstraint(Sketcher.Constraint("Horizontal", 81))
sketch4.addConstraint(Sketcher.Constraint("Vertical", 82))
sketch4.addConstraint(Sketcher.Constraint("Horizontal", 83))
sketch4.addConstraint(Sketcher.Constraint("Horizontal", 3, 2, 10, 2))
sketch4.addConstraint(Sketcher.Constraint("Horizontal", 11, 2, 14, 2))
sketch4.addConstraint(Sketcher.Constraint("Horizontal", 15, 2, 18, 2))
sketch4.addConstraint(Sketcher.Constraint("Horizontal", 19, 2, 22, 2))
sketch4.addConstraint(Sketcher.Constraint("Horizontal", 23, 2, 26, 2))
sketch4.addConstraint(Sketcher.Constraint("Horizontal", 27, 2, 30, 2))
sketch4.addConstraint(Sketcher.Constraint("Horizontal", 49, 2, 52, 2))
sketch4.addConstraint(Sketcher.Constraint("Horizontal", 53, 2, 56, 2))
sketch4.addConstraint(Sketcher.Constraint("Horizontal", 57, 2, 60, 2))
sketch4.addConstraint(Sketcher.Constraint("Horizontal", 61, 2, 64, 2))
sketch4.addConstraint(Sketcher.Constraint("Horizontal", 65, 2, 68, 2))
sketch4.addConstraint(Sketcher.Constraint("Horizontal", 69, 2, 72, 2))
sketch4.addConstraint(Sketcher.Constraint("Horizontal", 73, 2, 76, 2))
sketch4.addConstraint(Sketcher.Constraint("Horizontal", 77, 2, 80, 2))
sketch4.addConstraint(Sketcher.Constraint("Vertical", 35, 2, 36, 2))
sketch4.addConstraint(Sketcher.Constraint("Vertical", 34, 2, 37, 2))
sketch4.addConstraint(Sketcher.Constraint("Equal", 3, 5))
sketch4.addConstraint(Sketcher.Constraint("Equal", 7, 9))
sketch4.addConstraint(Sketcher.Constraint("Equal", 11, 13))
sketch4.addConstraint(Sketcher.Constraint("Equal", 15, 17))
sketch4.addConstraint(Sketcher.Constraint("Equal", 19, 21))
sketch4.addConstraint(Sketcher.Constraint("Equal", 23, 25))
sketch4.addConstraint(Sketcher.Constraint("Equal", 27, 29))
sketch4.addConstraint(Sketcher.Constraint("Equal", 31, 33))
sketch4.addConstraint(Sketcher.Constraint("Equal", 39, 41))
sketch4.addConstraint(Sketcher.Constraint("Equal", 43, 45))
sketch4.addConstraint(Sketcher.Constraint("Equal", 47, 49))
sketch4.addConstraint(Sketcher.Constraint("Equal", 51, 53))
sketch4.addConstraint(Sketcher.Constraint("Equal", 55, 57))
sketch4.addConstraint(Sketcher.Constraint("Equal", 59, 61))
sketch4.addConstraint(Sketcher.Constraint("Equal", 63, 65))
sketch4.addConstraint(Sketcher.Constraint("Equal", 67, 69))
sketch4.addConstraint(Sketcher.Constraint("Equal", 71, 73))
sketch4.addConstraint(Sketcher.Constraint("Equal", 75, 77))
sketch4.addConstraint(Sketcher.Constraint("DistanceX", 1, 1, 1, 2, 5.0))
sketch4.addConstraint(Sketcher.Constraint("DistanceX", 81, 1, 81, 2, 3.0))
sketch4.addConstraint(Sketcher.Constraint("DistanceY", 0, 2, 0, 1, 44.93185))
sketch4.addConstraint(Sketcher.Constraint("DistanceY", 8, 2, 8, 1, 143.82022))
sketch4.addConstraint(Sketcher.Constraint("DistanceY", 12, 2, 12, 1, 146.914949))
sketch4.addConstraint(Sketcher.Constraint("DistanceY", 20, 2, 20, 1, 155.922672))
sketch4.addConstraint(Sketcher.Constraint("DistanceY", 24, 2, 24, 1, 152.60311))
sketch4.addConstraint(Sketcher.Constraint("DistanceY", 32, 2, 32, 1, 74.565352))
sketch4.addConstraint(Sketcher.Constraint("DistanceY", 48, 2, 48, 1, 22.61665))
sketch4.addConstraint(Sketcher.Constraint("DistanceY", 56, 2, 56, 1, 21.923671))
sketch4.addConstraint(Sketcher.Constraint("DistanceY", 64, 2, 64, 1, 21.303791))
sketch4.addConstraint(Sketcher.Constraint("DistanceX", 0, 2, -1, 1, 75.9691))
sketch4.addConstraint(Sketcher.Constraint("DistanceX", 8, 2, -1, 1, 67.9691))
sketch4.addConstraint(Sketcher.Constraint("DistanceX", 12, 2, -1, 1, 59.9691))
sketch4.addConstraint(Sketcher.Constraint("DistanceX", 16, 2, -1, 1, 51.9691))
sketch4.addConstraint(Sketcher.Constraint("DistanceX", 20, 2, -1, 1, 35.9691))
sketch4.addConstraint(Sketcher.Constraint("DistanceX", 24, 2, -1, 1, 43.9691))
sketch4.addConstraint(Sketcher.Constraint("DistanceX", 28, 2, -1, 1, 27.9691))
sketch4.addConstraint(Sketcher.Constraint("DistanceX", 32, 2, -1, 1, 18.9691))
sketch4.addConstraint(Sketcher.Constraint("DistanceX", 40, 2, -1, 1, 10.9691))
sketch4.addConstraint(Sketcher.Constraint("DistanceX", 44, 2, -1, 1, 2.9691))
sketch4.addConstraint(Sketcher.Constraint("DistanceX", -1, 1, 48, 2, 5.0309))
sketch4.addConstraint(Sketcher.Constraint("DistanceX", -1, 1, 52, 2, 13.0309))
sketch4.addConstraint(Sketcher.Constraint("DistanceX", -1, 1, 56, 2, 21.0309))
sketch4.addConstraint(Sketcher.Constraint("DistanceX", -1, 1, 60, 2, 29.0309))
sketch4.addConstraint(Sketcher.Constraint("DistanceX", -1, 1, 64, 2, 37.0309))
sketch4.addConstraint(Sketcher.Constraint("DistanceX", -1, 1, 68, 2, 45.0309))
sketch4.addConstraint(Sketcher.Constraint("DistanceX", -1, 1, 72, 2, 53.0309))
sketch4.addConstraint(Sketcher.Constraint("DistanceX", -1, 1, 76, 2, 61.0309))
sketch4.addConstraint(Sketcher.Constraint("DistanceX", -1, 1, 80, 2, 69.0309))
sketch4.addConstraint(Sketcher.Constraint("DistanceY", 4, 2, 4, 1, 80.277377))
sketch4.addConstraint(Sketcher.Constraint("DistanceY", 16, 2, 16, 1, 150.008155))
sketch4.addConstraint(Sketcher.Constraint("DistanceY", 28, 2, 28, 1, 158.631397))
sketch4.addConstraint(Sketcher.Constraint("DistanceY", 36, 2, 36, 1, 59.935174))
sketch4.addConstraint(Sketcher.Constraint("DistanceY", 40, 2, 40, 1, 17.802537))
sketch4.addConstraint(Sketcher.Constraint("DistanceY", 44, 2, 44, 1, 20.475702))
sketch4.addConstraint(Sketcher.Constraint("DistanceY", 52, 2, 52, 1, 22.198746))
sketch4.addConstraint(Sketcher.Constraint("DistanceY", 60, 2, 60, 1, 21.644043))
sketch4.addConstraint(Sketcher.Constraint("DistanceY", 68, 2, 68, 1, 21.036336))
sketch4.addConstraint(Sketcher.Constraint("DistanceY", 72, 2, 72, 1, 20.777645))
sketch4.addConstraint(Sketcher.Constraint("DistanceY", 76, 2, 76, 1, 20.346487))
sketch4.addConstraint(Sketcher.Constraint("DistanceY", 80, 2, 80, 1, 20.140204))
sketch4.addConstraint(Sketcher.Constraint("DistanceY", -1, 1, 0, 2, 38.994519))
sketch4.addConstraint(Sketcher.Constraint("DistanceY", 32, 2, -1, 1, 2.89773))
sketch4.addConstraint(Sketcher.Constraint("DistanceY", 36, 2, -1, 1, 77.687591))
sketch4.addConstraint(Sketcher.Constraint("DistanceY", 40, 2, -1, 1, 80.601468))
sketch4.addConstraint(Sketcher.Constraint("DistanceY", 44, 2, -1, 1, 83.617091))
sketch4.addConstraint(Sketcher.Constraint("DistanceY", 48, 2, -1, 1, 86.073631))
sketch4.addConstraint(Sketcher.Constraint("DistanceX", 4, 2, -1, 1, 74.913613))
sketch4.addConstraint(Sketcher.Constraint("DistanceY", 4, 2, -1, 1, 57.145522))
sketch4.setExpression("Constraints[202]", "Params.sketch4_width")
sketch4.setExpression("Constraints[203]", "Params.sketch4_width2")
pocket2 = body.newObject("PartDesign::Pocket", "Pocket001")
pocket2.Profile = sketch4
pocket2.setExpression("Length", "Params.pocket2_length")
pocket2.Reversed = True

doc.recompute()
